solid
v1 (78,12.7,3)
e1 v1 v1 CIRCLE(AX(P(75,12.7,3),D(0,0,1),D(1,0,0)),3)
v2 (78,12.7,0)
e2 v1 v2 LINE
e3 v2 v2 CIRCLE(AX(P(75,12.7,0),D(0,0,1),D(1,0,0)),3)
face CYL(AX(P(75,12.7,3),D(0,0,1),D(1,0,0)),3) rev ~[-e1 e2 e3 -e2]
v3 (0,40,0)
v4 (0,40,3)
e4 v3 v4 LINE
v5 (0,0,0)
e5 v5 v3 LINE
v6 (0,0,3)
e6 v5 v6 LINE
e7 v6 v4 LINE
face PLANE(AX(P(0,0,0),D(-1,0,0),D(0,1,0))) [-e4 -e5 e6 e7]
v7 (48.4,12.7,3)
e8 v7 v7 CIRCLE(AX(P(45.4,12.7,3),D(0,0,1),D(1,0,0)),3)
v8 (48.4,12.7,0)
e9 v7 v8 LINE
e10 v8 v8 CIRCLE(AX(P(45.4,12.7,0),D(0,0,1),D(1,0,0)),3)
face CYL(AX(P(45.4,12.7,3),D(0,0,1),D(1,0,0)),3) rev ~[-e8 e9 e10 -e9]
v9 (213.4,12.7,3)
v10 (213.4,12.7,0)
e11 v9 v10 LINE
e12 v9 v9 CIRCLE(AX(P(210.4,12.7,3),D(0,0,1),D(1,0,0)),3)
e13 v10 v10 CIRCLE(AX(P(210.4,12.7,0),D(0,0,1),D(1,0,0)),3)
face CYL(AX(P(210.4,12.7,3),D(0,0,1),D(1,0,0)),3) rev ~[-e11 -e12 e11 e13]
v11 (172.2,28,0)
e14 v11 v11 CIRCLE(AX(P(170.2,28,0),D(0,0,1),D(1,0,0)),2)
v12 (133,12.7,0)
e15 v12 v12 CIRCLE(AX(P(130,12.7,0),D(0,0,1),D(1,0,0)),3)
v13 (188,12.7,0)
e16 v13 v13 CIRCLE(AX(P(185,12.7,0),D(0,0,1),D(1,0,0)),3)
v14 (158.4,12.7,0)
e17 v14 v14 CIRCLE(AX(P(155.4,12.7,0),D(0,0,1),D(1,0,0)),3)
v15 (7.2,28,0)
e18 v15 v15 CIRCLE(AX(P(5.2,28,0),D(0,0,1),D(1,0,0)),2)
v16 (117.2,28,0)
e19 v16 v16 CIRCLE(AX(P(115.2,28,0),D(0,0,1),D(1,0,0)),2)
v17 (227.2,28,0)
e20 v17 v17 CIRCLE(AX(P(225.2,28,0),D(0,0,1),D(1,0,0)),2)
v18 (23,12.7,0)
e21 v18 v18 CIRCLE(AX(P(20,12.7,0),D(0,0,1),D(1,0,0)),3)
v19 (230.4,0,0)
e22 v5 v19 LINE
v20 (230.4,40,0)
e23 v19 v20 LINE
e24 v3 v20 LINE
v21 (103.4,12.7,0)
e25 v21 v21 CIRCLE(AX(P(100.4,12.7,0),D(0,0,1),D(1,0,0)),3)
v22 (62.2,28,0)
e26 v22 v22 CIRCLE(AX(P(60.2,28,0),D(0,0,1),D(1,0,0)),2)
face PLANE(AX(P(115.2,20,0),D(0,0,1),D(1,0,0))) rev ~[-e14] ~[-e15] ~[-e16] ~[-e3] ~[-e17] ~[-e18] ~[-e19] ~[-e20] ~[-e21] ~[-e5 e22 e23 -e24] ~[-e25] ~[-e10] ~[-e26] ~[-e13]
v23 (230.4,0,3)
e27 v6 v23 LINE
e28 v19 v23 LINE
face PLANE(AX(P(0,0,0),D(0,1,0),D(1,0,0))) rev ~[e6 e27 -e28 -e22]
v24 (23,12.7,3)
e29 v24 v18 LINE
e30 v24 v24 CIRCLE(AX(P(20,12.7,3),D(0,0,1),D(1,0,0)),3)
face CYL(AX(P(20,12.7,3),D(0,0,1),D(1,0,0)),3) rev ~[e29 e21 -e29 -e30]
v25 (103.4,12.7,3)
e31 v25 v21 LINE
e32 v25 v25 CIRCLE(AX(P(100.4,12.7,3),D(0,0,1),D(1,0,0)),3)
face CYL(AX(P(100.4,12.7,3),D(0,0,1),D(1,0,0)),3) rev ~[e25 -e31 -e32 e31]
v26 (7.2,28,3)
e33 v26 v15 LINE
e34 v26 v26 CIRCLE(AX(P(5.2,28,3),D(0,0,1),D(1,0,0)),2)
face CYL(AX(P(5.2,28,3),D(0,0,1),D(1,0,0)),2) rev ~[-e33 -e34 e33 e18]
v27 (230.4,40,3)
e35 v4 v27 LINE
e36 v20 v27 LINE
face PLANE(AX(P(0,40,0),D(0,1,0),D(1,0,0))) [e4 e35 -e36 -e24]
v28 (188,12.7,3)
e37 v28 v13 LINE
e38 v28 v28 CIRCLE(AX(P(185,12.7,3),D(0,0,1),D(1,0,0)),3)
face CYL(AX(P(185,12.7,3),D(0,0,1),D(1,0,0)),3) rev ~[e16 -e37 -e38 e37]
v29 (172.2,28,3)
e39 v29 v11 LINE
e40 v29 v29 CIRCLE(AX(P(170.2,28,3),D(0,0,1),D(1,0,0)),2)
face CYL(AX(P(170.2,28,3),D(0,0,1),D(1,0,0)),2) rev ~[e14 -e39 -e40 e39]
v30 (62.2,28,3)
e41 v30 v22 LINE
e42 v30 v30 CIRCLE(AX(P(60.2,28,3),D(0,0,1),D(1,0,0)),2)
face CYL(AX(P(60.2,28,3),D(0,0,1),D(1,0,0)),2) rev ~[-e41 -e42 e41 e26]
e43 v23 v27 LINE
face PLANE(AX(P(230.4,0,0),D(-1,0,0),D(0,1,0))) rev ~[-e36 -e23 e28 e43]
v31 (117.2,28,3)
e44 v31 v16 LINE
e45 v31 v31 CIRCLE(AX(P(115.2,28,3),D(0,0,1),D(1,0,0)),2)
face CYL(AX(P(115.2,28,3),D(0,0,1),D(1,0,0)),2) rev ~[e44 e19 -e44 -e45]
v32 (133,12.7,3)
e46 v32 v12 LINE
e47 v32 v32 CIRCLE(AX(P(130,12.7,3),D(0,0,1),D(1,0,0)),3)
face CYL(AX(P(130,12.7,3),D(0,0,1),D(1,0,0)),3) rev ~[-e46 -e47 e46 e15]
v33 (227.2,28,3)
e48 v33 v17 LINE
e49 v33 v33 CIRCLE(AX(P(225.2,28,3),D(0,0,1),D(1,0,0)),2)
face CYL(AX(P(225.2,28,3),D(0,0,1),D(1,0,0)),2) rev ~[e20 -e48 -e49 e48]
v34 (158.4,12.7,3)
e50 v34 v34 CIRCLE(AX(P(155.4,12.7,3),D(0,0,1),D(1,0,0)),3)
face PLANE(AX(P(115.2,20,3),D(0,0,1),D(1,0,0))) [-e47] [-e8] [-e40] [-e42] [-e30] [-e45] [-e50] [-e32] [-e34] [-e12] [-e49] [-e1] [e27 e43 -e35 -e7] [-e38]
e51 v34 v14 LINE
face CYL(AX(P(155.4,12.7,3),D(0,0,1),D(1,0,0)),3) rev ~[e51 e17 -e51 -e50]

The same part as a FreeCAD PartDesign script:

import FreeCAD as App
import Part
import Sketcher

doc = App.newDocument("Part")
body = doc.addObject("PartDesign::Body", "Body")

sketch1 = body.newObject("Sketcher::SketchObject", "Sketch")
sketch1.AttachmentSupport = (doc.getObject("XY_Plane"), [""])
sketch1.MapMode = "FlatFace"
sketch1.addGeometry([
    Part.LineSegment(App.Vector(0, 40, 0), App.Vector(0, 0, 0)),
    Part.LineSegment(App.Vector(0, 0, 0), App.Vector(230.4, 0, 0)),
    Part.LineSegment(App.Vector(230.4, 0, 0), App.Vector(230.4, 40, 0)),
    Part.LineSegment(App.Vector(230.4, 40, 0), App.Vector(0, 40, 0)),
], False)
sketch1.addConstraint([
    Sketcher.Constraint("Coincident", 0, 2, 1, 1),
    Sketcher.Constraint("Coincident", 1, 2, 2, 1),
    Sketcher.Constraint("Coincident", 2, 2, 3, 1),
    Sketcher.Constraint("Coincident", 3, 2, 0, 1),
    Sketcher.Constraint("Vertical", 0),
    Sketcher.Constraint("Horizontal", 1),
    Sketcher.Constraint("Vertical", 2),
    Sketcher.Constraint("Horizontal", 3),
    Sketcher.Constraint("Coincident", 0, 2, -1, 1),
    Sketcher.Constraint("DistanceY", 0, 2, 0, 1, 40.0),
    Sketcher.Constraint("DistanceX", 1, 1, 1, 2, 230.4),
])
pad1 = body.newObject("PartDesign::Pad", "Pad")
pad1.Profile = sketch1
pad1.Length = 3

sketch2 = body.newObject("Sketcher::SketchObject", "Sketch001")
sketch2.AttachmentSupport = (doc.getObject("XY_Plane"), [""])
sketch2.MapMode = "FlatFace"
sketch2.AttachmentOffset = App.Placement(App.Vector(0, 0, 3), App.Rotation())
sketch2.addGeometry([
    Part.Circle(App.Vector(5.2, 28, 0), App.Vector(0, 0, 1), 2),
    Part.Circle(App.Vector(60.2, 28, 0), App.Vector(0, 0, 1), 2),
    Part.Circle(App.Vector(115.2, 28, 0), App.Vector(0, 0, 1), 2),
    Part.Circle(App.Vector(170.2, 28, 0), App.Vector(0, 0, 1), 2),
    Part.Circle(App.Vector(225.2, 28, 0), App.Vector(0, 0, 1), 2),
], False)
sketch2.addConstraint([
    Sketcher.Constraint("Equal", 0, 1),
    Sketcher.Constraint("Equal", 1, 2),
    Sketcher.Constraint("Equal", 2, 3),
    Sketcher.Constraint("Equal", 3, 4),
    Sketcher.Constraint("Horizontal", 0, 3, 1, 3),
    Sketcher.Constraint("Horizontal", 1, 3, 2, 3),
    Sketcher.Constraint("Horizontal", 2, 3, 3, 3),
    Sketcher.Constraint("Horizontal", 3, 3, 4, 3),
    Sketcher.Constraint("Diameter", 0, 4.0),
    Sketcher.Constraint("DistanceY", -1, 1, 0, 3, 28.0),
    Sketcher.Constraint("DistanceX", 0, 3, 1, 3, 55.0),
    Sketcher.Constraint("DistanceX", 1, 3, 2, 3, 55.0),
    Sketcher.Constraint("DistanceX", 2, 3, 3, 3, 55.0),
    Sketcher.Constraint("DistanceX", 3, 3, 4, 3, 55.0),
    Sketcher.Constraint("DistanceX", -1, 1, 0, 3, 5.2),
])
pocket1 = body.newObject("PartDesign::Pocket", "Pocket")
pocket1.Profile = sketch2
pocket1.Type = "ThroughAll"

sketch3 = body.newObject("Sketcher::SketchObject", "Sketch002")
sketch3.AttachmentSupport = (doc.getObject("XY_Plane"), [""])
sketch3.MapMode = "FlatFace"
sketch3.AttachmentOffset = App.Placement(App.Vector(0, 0, 3), App.Rotation())
sketch3.addGeometry([
    Part.Circle(App.Vector(20, 12.7, 0), App.Vector(0, 0, 1), 3),
    Part.Circle(App.Vector(45.4, 12.7, 0), App.Vector(0, 0, 1), 3),
    Part.Circle(App.Vector(75, 12.7, 0), App.Vector(0, 0, 1), 3),
    Part.Circle(App.Vector(100.4, 12.7, 0), App.Vector(0, 0, 1), 3),
    Part.Circle(App.Vector(130, 12.7, 0), App.Vector(0, 0, 1), 3),
    Part.Circle(App.Vector(155.4, 12.7, 0), App.Vector(0, 0, 1), 3),
    Part.Circle(App.Vector(185, 12.7, 0), App.Vector(0, 0, 1), 3),
    Part.Circle(App.Vector(210.4, 12.7, 0), App.Vector(0, 0, 1), 3),
], False)
sketch3.addConstraint([
    Sketcher.Constraint("Equal", 0, 1),
    Sketcher.Constraint("Equal", 1, 2),
    Sketcher.Constraint("Equal", 2, 3),
    Sketcher.Constraint("Equal", 3, 4),
    Sketcher.Constraint("Equal", 4, 5),
    Sketcher.Constraint("Equal", 5, 6),
    Sketcher.Constraint("Equal", 6, 7),
    Sketcher.Constraint("Horizontal", 0, 3, 1, 3),
    Sketcher.Constraint("Horizontal", 1, 3, 2, 3),
    Sketcher.Constraint("Horizontal", 2, 3, 3, 3),
    Sketcher.Constraint("Horizontal", 3, 3, 4, 3),
    Sketcher.Constraint("Horizontal", 4, 3, 5, 3),
    Sketcher.Constraint("Horizontal", 5, 3, 6, 3),
    Sketcher.Constraint("Horizontal", 6, 3, 7, 3),
    Sketcher.Constraint("Diameter", 0, 6.0),
    Sketcher.Constraint("DistanceX", -1, 1, 0, 3, 20.0),
    Sketcher.Constraint("DistanceX", -1, 1, 2, 3, 75.0),
    Sketcher.Constraint("DistanceX", -1, 1, 4, 3, 130.0),
    Sketcher.Constraint("DistanceX", -1, 1, 6, 3, 185.0),
    Sketcher.Constraint("DistanceX", 1, 3, 3, 3, 55.0),
    Sketcher.Constraint("DistanceX", 3, 3, 5, 3, 55.0),
    Sketcher.Constraint("DistanceX", 5, 3, 7, 3, 55.0),
    Sketcher.Constraint("DistanceY", -1, 1, 0, 3, 12.7),
    Sketcher.Constraint("DistanceX", -1, 1, 1, 3, 45.4),
])
pocket2 = body.newObject("PartDesign::Pocket", "Pocket001")
pocket2.Profile = sketch3
pocket2.Type = "ThroughAll"

doc.recompute()
